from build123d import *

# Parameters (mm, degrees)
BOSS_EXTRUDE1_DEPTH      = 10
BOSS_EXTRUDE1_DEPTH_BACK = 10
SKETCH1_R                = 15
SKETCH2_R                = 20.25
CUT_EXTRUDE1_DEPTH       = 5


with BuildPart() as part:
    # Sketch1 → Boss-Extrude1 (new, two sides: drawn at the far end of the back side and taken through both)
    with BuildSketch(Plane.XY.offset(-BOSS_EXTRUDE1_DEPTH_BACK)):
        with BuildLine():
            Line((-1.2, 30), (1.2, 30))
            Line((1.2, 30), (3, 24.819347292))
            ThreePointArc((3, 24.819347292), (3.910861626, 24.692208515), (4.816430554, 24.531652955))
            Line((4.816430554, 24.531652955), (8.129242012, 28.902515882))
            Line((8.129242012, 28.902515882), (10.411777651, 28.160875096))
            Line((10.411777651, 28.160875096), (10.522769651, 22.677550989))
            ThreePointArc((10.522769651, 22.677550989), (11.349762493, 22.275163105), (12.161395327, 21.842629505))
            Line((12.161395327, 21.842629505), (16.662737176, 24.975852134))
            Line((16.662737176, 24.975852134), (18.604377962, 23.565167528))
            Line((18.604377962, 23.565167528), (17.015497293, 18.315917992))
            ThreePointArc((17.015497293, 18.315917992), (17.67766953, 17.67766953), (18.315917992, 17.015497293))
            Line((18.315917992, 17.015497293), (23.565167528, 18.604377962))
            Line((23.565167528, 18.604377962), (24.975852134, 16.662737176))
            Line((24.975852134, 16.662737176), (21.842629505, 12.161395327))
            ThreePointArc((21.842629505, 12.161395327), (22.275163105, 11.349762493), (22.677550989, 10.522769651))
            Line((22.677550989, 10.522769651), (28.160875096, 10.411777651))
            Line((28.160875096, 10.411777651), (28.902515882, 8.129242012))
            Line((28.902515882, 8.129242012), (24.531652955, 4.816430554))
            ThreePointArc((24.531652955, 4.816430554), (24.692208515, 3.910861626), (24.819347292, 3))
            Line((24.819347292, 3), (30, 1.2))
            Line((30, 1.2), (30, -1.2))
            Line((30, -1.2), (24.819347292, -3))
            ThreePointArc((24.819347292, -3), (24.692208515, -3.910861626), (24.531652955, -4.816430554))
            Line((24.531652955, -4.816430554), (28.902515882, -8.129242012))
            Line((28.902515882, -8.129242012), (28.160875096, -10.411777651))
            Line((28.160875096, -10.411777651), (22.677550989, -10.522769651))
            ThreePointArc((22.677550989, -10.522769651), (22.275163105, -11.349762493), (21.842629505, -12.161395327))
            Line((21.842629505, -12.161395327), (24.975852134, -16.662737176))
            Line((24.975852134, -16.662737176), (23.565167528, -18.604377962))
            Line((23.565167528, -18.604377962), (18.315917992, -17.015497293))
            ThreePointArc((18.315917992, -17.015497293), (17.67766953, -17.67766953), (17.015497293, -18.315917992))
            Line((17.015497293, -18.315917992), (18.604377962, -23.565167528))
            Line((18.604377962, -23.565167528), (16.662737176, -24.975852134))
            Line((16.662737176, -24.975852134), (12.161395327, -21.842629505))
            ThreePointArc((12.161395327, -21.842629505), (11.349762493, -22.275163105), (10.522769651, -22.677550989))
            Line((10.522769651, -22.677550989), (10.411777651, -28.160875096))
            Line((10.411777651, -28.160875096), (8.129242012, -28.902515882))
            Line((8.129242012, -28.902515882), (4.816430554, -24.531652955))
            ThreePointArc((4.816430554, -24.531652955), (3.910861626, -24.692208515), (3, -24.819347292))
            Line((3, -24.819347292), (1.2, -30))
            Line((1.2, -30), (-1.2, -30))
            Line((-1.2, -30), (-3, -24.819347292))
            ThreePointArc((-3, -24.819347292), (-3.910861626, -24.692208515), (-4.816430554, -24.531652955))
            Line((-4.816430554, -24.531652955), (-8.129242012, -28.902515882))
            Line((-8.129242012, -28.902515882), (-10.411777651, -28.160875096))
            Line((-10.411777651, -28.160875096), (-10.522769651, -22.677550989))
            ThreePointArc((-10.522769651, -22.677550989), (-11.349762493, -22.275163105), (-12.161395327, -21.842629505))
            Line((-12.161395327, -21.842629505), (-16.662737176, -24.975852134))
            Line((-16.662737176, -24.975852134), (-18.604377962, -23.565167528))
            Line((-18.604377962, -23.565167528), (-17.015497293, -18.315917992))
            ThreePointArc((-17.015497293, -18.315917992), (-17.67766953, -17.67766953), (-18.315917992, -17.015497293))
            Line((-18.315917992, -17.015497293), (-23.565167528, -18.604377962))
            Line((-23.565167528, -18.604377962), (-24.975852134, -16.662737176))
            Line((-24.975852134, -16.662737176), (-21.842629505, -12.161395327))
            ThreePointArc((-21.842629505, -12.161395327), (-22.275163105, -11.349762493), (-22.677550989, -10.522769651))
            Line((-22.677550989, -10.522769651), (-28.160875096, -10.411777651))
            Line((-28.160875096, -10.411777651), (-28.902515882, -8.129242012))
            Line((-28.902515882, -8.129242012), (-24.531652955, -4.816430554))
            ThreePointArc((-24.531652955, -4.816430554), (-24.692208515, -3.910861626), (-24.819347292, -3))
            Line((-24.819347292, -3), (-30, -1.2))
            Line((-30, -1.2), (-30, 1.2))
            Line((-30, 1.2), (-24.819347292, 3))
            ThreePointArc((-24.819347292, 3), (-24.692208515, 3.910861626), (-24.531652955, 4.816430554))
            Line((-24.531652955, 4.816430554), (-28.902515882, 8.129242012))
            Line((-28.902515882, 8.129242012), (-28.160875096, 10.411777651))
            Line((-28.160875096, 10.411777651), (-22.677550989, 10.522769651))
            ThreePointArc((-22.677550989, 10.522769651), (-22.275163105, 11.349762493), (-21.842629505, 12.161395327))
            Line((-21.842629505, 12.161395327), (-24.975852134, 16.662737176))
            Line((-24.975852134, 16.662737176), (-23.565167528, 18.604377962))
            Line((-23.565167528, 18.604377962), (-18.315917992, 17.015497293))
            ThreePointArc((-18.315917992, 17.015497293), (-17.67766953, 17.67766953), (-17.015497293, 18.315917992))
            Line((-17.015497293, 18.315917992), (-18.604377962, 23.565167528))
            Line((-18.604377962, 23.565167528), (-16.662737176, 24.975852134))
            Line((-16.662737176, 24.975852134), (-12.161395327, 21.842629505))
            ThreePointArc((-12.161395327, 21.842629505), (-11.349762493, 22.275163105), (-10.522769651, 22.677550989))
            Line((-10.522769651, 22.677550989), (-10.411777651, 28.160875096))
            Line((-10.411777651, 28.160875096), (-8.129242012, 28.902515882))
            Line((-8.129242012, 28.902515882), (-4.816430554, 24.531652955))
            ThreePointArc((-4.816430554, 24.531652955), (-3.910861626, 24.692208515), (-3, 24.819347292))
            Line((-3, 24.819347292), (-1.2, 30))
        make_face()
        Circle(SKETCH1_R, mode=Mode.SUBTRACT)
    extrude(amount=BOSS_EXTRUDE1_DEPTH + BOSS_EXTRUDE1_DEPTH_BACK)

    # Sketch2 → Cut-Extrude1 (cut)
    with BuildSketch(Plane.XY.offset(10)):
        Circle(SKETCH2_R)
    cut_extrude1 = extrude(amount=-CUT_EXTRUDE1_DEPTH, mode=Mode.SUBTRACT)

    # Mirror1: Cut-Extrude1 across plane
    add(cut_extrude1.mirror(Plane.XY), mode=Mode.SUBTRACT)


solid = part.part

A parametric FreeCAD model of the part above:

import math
import FreeCAD as App
import Part
import Sketcher
Q = App.Units.Quantity

doc = App.newDocument("Part")
body = doc.addObject("PartDesign::Body", "Body")

# Sketch on XY plane
sketch1 = doc.addObject("Sketcher::SketchObject", "Sketch")
body.addObject(sketch1)
sketch1.AttachmentSupport = (doc.XY_Plane, [""])
sketch1.MapMode = "FlatFace"
sketch1.addGeometry([
    Part.LineSegment(App.Vector(1.2, 30, 0), App.Vector(-1.2, 30, 0)),  # 0
    Part.LineSegment(App.Vector(-1.2, 30, 0), App.Vector(-3, 24.8, 0)),  # 1
    Part.ArcOfCircle(Part.Circle(App.Vector(0, 0, 0), App.Vector(0, 0, 1), 25), math.radians(96.89), math.radians(101.11)),  # 2
    Part.LineSegment(App.Vector(-4.8, 24.5, 0), App.Vector(-8.1, 28.9, 0)),  # 3
    Part.LineSegment(App.Vector(-8.1, 28.9, 0), App.Vector(-10.4, 28.2, 0)),  # 4
    Part.LineSegment(App.Vector(-10.4, 28.2, 0), App.Vector(-10.5, 22.7, 0)),  # 5
    Part.ArcOfCircle(Part.Circle(App.Vector(0, 0, 0), App.Vector(0, 0, 1), 25), math.radians(114.89), math.radians(119.11)),  # 6
    Part.LineSegment(App.Vector(-12.2, 21.8, 0), App.Vector(-16.7, 25, 0)),  # 7
    Part.LineSegment(App.Vector(-16.7, 25, 0), App.Vector(-18.6, 23.6, 0)),  # 8
    Part.LineSegment(App.Vector(-18.6, 23.6, 0), App.Vector(-17, 18.3, 0)),  # 9
    Part.ArcOfCircle(Part.Circle(App.Vector(0, 0, 0), App.Vector(0, 0, 1), 25), math.radians(132.89), math.radians(137.11)),  # 10
    Part.LineSegment(App.Vector(-18.3, 17, 0), App.Vector(-23.6, 18.6, 0)),  # 11
    Part.LineSegment(App.Vector(-23.6, 18.6, 0), App.Vector(-25, 16.7, 0)),  # 12
    Part.LineSegment(App.Vector(-25, 16.7, 0), App.Vector(-21.8, 12.2, 0)),  # 13
    Part.ArcOfCircle(Part.Circle(App.Vector(0, 0, 0), App.Vector(0, 0, 1), 25), math.radians(150.89), math.radians(155.11)),  # 14
    Part.LineSegment(App.Vector(-22.7, 10.5, 0), App.Vector(-28.2, 10.4, 0)),  # 15
    Part.LineSegment(App.Vector(-28.2, 10.4, 0), App.Vector(-28.9, 8.1, 0)),  # 16
    Part.LineSegment(App.Vector(-28.9, 8.1, 0), App.Vector(-24.5, 4.8, 0)),  # 17
    Part.ArcOfCircle(Part.Circle(App.Vector(0, 0, 0), App.Vector(0, 0, 1), 25), math.radians(168.89), math.radians(173.11)),  # 18
    Part.LineSegment(App.Vector(-24.8, 3, 0), App.Vector(-30, 1.2, 0)),  # 19
    Part.LineSegment(App.Vector(-30, 1.2, 0), App.Vector(-30, -1.2, 0)),  # 20
    Part.LineSegment(App.Vector(-30, -1.2, 0), App.Vector(-24.8, -3, 0)),  # 21
    Part.ArcOfCircle(Part.Circle(App.Vector(0, 0, 0), App.Vector(0, 0, 1), 25), math.radians(-173.11), math.radians(-168.89)),  # 22
    Part.LineSegment(App.Vector(-24.5, -4.8, 0), App.Vector(-28.9, -8.1, 0)),  # 23
    Part.LineSegment(App.Vector(-28.9, -8.1, 0), App.Vector(-28.2, -10.4, 0)),  # 24
    Part.LineSegment(App.Vector(-28.2, -10.4, 0), App.Vector(-22.7, -10.5, 0)),  # 25
    Part.ArcOfCircle(Part.Circle(App.Vector(0, 0, 0), App.Vector(0, 0, 1), 25), math.radians(-155.11), math.radians(-150.89)),  # 26
    Part.LineSegment(App.Vector(-21.8, -12.2, 0), App.Vector(-25, -16.7, 0)),  # 27
    Part.LineSegment(App.Vector(-25, -16.7, 0), App.Vector(-23.6, -18.6, 0)),  # 28
    Part.LineSegment(App.Vector(-23.6, -18.6, 0), App.Vector(-18.3, -17, 0)),  # 29
    Part.ArcOfCircle(Part.Circle(App.Vector(0, 0, 0), App.Vector(0, 0, 1), 25), math.radians(-137.11), math.radians(-132.89)),  # 30
    Part.LineSegment(App.Vector(-17, -18.3, 0), App.Vector(-18.6, -23.6, 0)),  # 31
    Part.LineSegment(App.Vector(-18.6, -23.6, 0), App.Vector(-16.7, -25, 0)),  # 32
    Part.LineSegment(App.Vector(-16.7, -25, 0), App.Vector(-12.2, -21.8, 0)),  # 33
    Part.ArcOfCircle(Part.Circle(App.Vector(0, 0, 0), App.Vector(0, 0, 1), 25), math.radians(-119.11), math.radians(-114.89)),  # 34
    Part.LineSegment(App.Vector(-10.5, -22.7, 0), App.Vector(-10.4, -28.2, 0)),  # 35
    Part.LineSegment(App.Vector(-10.4, -28.2, 0), App.Vector(-8.1, -28.9, 0)),  # 36
    Part.LineSegment(App.Vector(-8.1, -28.9, 0), App.Vector(-4.8, -24.5, 0)),  # 37
    Part.ArcOfCircle(Part.Circle(App.Vector(0, 0, 0), App.Vector(0, 0, 1), 25), math.radians(-101.11), math.radians(-96.89)),  # 38
    Part.LineSegment(App.Vector(-3, -24.8, 0), App.Vector(-1.2, -30, 0)),  # 39
    Part.LineSegment(App.Vector(-1.2, -30, 0), App.Vector(1.2, -30, 0)),  # 40
    Part.LineSegment(App.Vector(1.2, -30, 0), App.Vector(3, -24.8, 0)),  # 41
    Part.ArcOfCircle(Part.Circle(App.Vector(0, 0, 0), App.Vector(0, 0, 1), 25), math.radians(-83.11), math.radians(-78.89)),  # 42
    Part.LineSegment(App.Vector(4.8, -24.5, 0), App.Vector(8.1, -28.9, 0)),  # 43
    Part.LineSegment(App.Vector(8.1, -28.9, 0), App.Vector(10.4, -28.2, 0)),  # 44
    Part.LineSegment(App.Vector(10.4, -28.2, 0), App.Vector(10.5, -22.7, 0)),  # 45
    Part.ArcOfCircle(Part.Circle(App.Vector(0, 0, 0), App.Vector(0, 0, 1), 25), math.radians(-65.11), math.radians(-60.89)),  # 46
    Part.LineSegment(App.Vector(12.2, -21.8, 0), App.Vector(16.7, -25, 0)),  # 47
    Part.LineSegment(App.Vector(16.7, -25, 0), App.Vector(18.6, -23.6, 0)),  # 48
    Part.LineSegment(App.Vector(18.6, -23.6, 0), App.Vector(17, -18.3, 0)),  # 49
    Part.ArcOfCircle(Part.Circle(App.Vector(0, 0, 0), App.Vector(0, 0, 1), 25), math.radians(-47.11), math.radians(-42.89)),  # 50
    Part.LineSegment(App.Vector(18.3, -17, 0), App.Vector(23.6, -18.6, 0)),  # 51
    Part.LineSegment(App.Vector(23.6, -18.6, 0), App.Vector(25, -16.7, 0)),  # 52
    Part.LineSegment(App.Vector(25, -16.7, 0), App.Vector(21.8, -12.2, 0)),  # 53
    Part.ArcOfCircle(Part.Circle(App.Vector(0, 0, 0), App.Vector(0, 0, 1), 25), math.radians(-29.11), math.radians(-24.89)),  # 54
    Part.LineSegment(App.Vector(22.7, -10.5, 0), App.Vector(28.2, -10.4, 0)),  # 55
    Part.LineSegment(App.Vector(28.2, -10.4, 0), App.Vector(28.9, -8.1, 0)),  # 56
    Part.LineSegment(App.Vector(28.9, -8.1, 0), App.Vector(24.5, -4.8, 0)),  # 57
    Part.ArcOfCircle(Part.Circle(App.Vector(0, 0, 0), App.Vector(0, 0, 1), 25), math.radians(-11.11), math.radians(-6.89)),  # 58
    Part.LineSegment(App.Vector(24.8, -3, 0), App.Vector(30, -1.2, 0)),  # 59
    Part.LineSegment(App.Vector(30, -1.2, 0), App.Vector(30, 1.2, 0)),  # 60
    Part.LineSegment(App.Vector(30, 1.2, 0), App.Vector(24.8, 3, 0)),  # 61
    Part.ArcOfCircle(Part.Circle(App.Vector(0, 0, 0), App.Vector(0, 0, 1), 25), math.radians(6.89), math.radians(11.11)),  # 62
    Part.LineSegment(App.Vector(24.5, 4.8, 0), App.Vector(28.9, 8.1, 0)),  # 63
    Part.LineSegment(App.Vector(28.9, 8.1, 0), App.Vector(28.2, 10.4, 0)),  # 64
    Part.LineSegment(App.Vector(28.2, 10.4, 0), App.Vector(22.7, 10.5, 0)),  # 65
    Part.ArcOfCircle(Part.Circle(App.Vector(0, 0, 0), App.Vector(0, 0, 1), 25), math.radians(24.89), math.radians(29.11)),  # 66
    Part.LineSegment(App.Vector(21.8, 12.2, 0), App.Vector(25, 16.7, 0)),  # 67
    Part.LineSegment(App.Vector(25, 16.7, 0), App.Vector(23.6, 18.6, 0)),  # 68
    Part.LineSegment(App.Vector(23.6, 18.6, 0), App.Vector(18.3, 17, 0)),  # 69
    Part.ArcOfCircle(Part.Circle(App.Vector(0, 0, 0), App.Vector(0, 0, 1), 25), math.radians(42.89), math.radians(47.11)),  # 70
    Part.LineSegment(App.Vector(17, 18.3, 0), App.Vector(18.6, 23.6, 0)),  # 71
    Part.LineSegment(App.Vector(18.6, 23.6, 0), App.Vector(16.7, 25, 0)),  # 72
    Part.LineSegment(App.Vector(16.7, 25, 0), App.Vector(12.2, 21.8, 0)),  # 73
    Part.ArcOfCircle(Part.Circle(App.Vector(0, 0, 0), App.Vector(0, 0, 1), 25), math.radians(60.89), math.radians(65.11)),  # 74
    Part.LineSegment(App.Vector(10.5, 22.7, 0), App.Vector(10.4, 28.2, 0)),  # 75
    Part.LineSegment(App.Vector(10.4, 28.2, 0), App.Vector(8.1, 28.9, 0)),  # 76
    Part.LineSegment(App.Vector(8.1, 28.9, 0), App.Vector(4.8, 24.5, 0)),  # 77
    Part.ArcOfCircle(Part.Circle(App.Vector(0, 0, 0), App.Vector(0, 0, 1), 25), math.radians(78.89), math.radians(83.11)),  # 78
    Part.LineSegment(App.Vector(3, 24.8, 0), App.Vector(1.2, 30, 0)),  # 79
    Part.Circle(App.Vector(0, 0, 0), App.Vector(0, 0, 1), 15),  # 80
], False)
sketch1.addConstraint([
    Sketcher.Constraint("Coincident", 0, 2, 1, 1),
    Sketcher.Constraint("Coincident", 1, 2, 2, 1),
    Sketcher.Constraint("Coincident", 2, 2, 3, 1),
    Sketcher.Constraint("Coincident", 3, 2, 4, 1),
    Sketcher.Constraint("Coincident", 4, 2, 5, 1),
    Sketcher.Constraint("Coincident", 5, 2, 6, 1),
    Sketcher.Constraint("Coincident", 6, 2, 7, 1),
    Sketcher.Constraint("Coincident", 7, 2, 8, 1),
    Sketcher.Constraint("Coincident", 8, 2, 9, 1),
    Sketcher.Constraint("Coincident", 9, 2, 10, 1),
    Sketcher.Constraint("Coincident", 10, 2, 11, 1),
    Sketcher.Constraint("Coincident", 11, 2, 12, 1),
    Sketcher.Constraint("Coincident", 12, 2, 13, 1),
    Sketcher.Constraint("Coincident", 13, 2, 14, 1),
    Sketcher.Constraint("Coincident", 14, 2, 15, 1),
    Sketcher.Constraint("Coincident", 15, 2, 16, 1),
    Sketcher.Constraint("Coincident", 16, 2, 17, 1),
    Sketcher.Constraint("Coincident", 17, 2, 18, 1),
    Sketcher.Constraint("Coincident", 18, 2, 19, 1),
    Sketcher.Constraint("Coincident", 19, 2, 20, 1),
    Sketcher.Constraint("Coincident", 20, 2, 21, 1),
    Sketcher.Constraint("Coincident", 21, 2, 22, 1),
    Sketcher.Constraint("Coincident", 22, 2, 23, 1),
    Sketcher.Constraint("Coincident", 23, 2, 24, 1),
    Sketcher.Constraint("Coincident", 24, 2, 25, 1),
    Sketcher.Constraint("Coincident", 25, 2, 26, 1),
    Sketcher.Constraint("Coincident", 26, 2, 27, 1),
    Sketcher.Constraint("Coincident", 27, 2, 28, 1),
    Sketcher.Constraint("Coincident", 28, 2, 29, 1),
    Sketcher.Constraint("Coincident", 29, 2, 30, 1),
    Sketcher.Constraint("Coincident", 30, 2, 31, 1),
    Sketcher.Constraint("Coincident", 31, 2, 32, 1),
    Sketcher.Constraint("Coincident", 32, 2, 33, 1),
    Sketcher.Constraint("Coincident", 33, 2, 34, 1),
    Sketcher.Constraint("Coincident", 34, 2, 35, 1),
    Sketcher.Constraint("Coincident", 35, 2, 36, 1),
    Sketcher.Constraint("Coincident", 36, 2, 37, 1),
    Sketcher.Constraint("Coincident", 37, 2, 38, 1),
    Sketcher.Constraint("Coincident", 38, 2, 39, 1),
    Sketcher.Constraint("Coincident", 39, 2, 40, 1),
    Sketcher.Constraint("Coincident", 40, 2, 41, 1),
    Sketcher.Constraint("Coincident", 41, 2, 42, 1),
    Sketcher.Constraint("Coincident", 42, 2, 43, 1),
    Sketcher.Constraint("Coincident", 43, 2, 44, 1),
    Sketcher.Constraint("Coincident", 44, 2, 45, 1),
    Sketcher.Constraint("Coincident", 45, 2, 46, 1),
    Sketcher.Constraint("Coincident", 46, 2, 47, 1),
    Sketcher.Constraint("Coincident", 47, 2, 48, 1),
    Sketcher.Constraint("Coincident", 48, 2, 49, 1),
    Sketcher.Constraint("Coincident", 49, 2, 50, 1),
    Sketcher.Constraint("Coincident", 50, 2, 51, 1),
    Sketcher.Constraint("Coincident", 51, 2, 52, 1),
    Sketcher.Constraint("Coincident", 52, 2, 53, 1),
    Sketcher.Constraint("Coincident", 53, 2, 54, 1),
    Sketcher.Constraint("Coincident", 54, 2, 55, 1),
    Sketcher.Constraint("Coincident", 55, 2, 56, 1),
    Sketcher.Constraint("Coincident", 56, 2, 57, 1),
    Sketcher.Constraint("Coincident", 57, 2, 58, 1),
    Sketcher.Constraint("Coincident", 58, 2, 59, 1),
    Sketcher.Constraint("Coincident", 59, 2, 60, 1),
    Sketcher.Constraint("Coincident", 60, 2, 61, 1),
    Sketcher.Constraint("Coincident", 61, 2, 62, 1),
    Sketcher.Constraint("Coincident", 62, 2, 63, 1),
    Sketcher.Constraint("Coincident", 63, 2, 64, 1),
    Sketcher.Constraint("Coincident", 64, 2, 65, 1),
    Sketcher.Constraint("Coincident", 65, 2, 66, 1),
    Sketcher.Constraint("Coincident", 66, 2, 67, 1),
    Sketcher.Constraint("Coincident", 67, 2, 68, 1),
    Sketcher.Constraint("Coincident", 68, 2, 69, 1),
    Sketcher.Constraint("Coincident", 69, 2, 70, 1),
    Sketcher.Constraint("Coincident", 70, 2, 71, 1),
    Sketcher.Constraint("Coincident", 71, 2, 72, 1),
    Sketcher.Constraint("Coincident", 72, 2, 73, 1),
    Sketcher.Constraint("Coincident", 73, 2, 74, 1),
    Sketcher.Constraint("Coincident", 74, 2, 75, 1),
    Sketcher.Constraint("Coincident", 75, 2, 76, 1),
    Sketcher.Constraint("Coincident", 76, 2, 77, 1),
    Sketcher.Constraint("Coincident", 77, 2, 78, 1),
    Sketcher.Constraint("Coincident", 78, 2, 79, 1),
    Sketcher.Constraint("Coincident", 79, 2, 0, 1),
    Sketcher.Constraint("Horizontal", 0),
    Sketcher.Constraint("Vertical", 20),
    Sketcher.Constraint("Horizontal", 40),
    Sketcher.Constraint("Vertical", 60),
    Sketcher.Constraint("Coincident", 2, 3, -1, 1),
    Sketcher.Constraint("Coincident", 6, 3, -1, 1),
    Sketcher.Constraint("Coincident", 10, 3, -1, 1),
    Sketcher.Constraint("Coincident", 14, 3, -1, 1),
    Sketcher.Constraint("Coincident", 18, 3, -1, 1),
    Sketcher.Constraint("Coincident", 22, 3, -1, 1),
    Sketcher.Constraint("Coincident", 26, 3, -1, 1),
    Sketcher.Constraint("Coincident", 30, 3, -1, 1),
    Sketcher.Constraint("Coincident", 34, 3, -1, 1),
    Sketcher.Constraint("Coincident", 38, 3, -1, 1),
    Sketcher.Constraint("Coincident", 42, 3, -1, 1),
    Sketcher.Constraint("Coincident", 46, 3, -1, 1),
    Sketcher.Constraint("Coincident", 50, 3, -1, 1),
    Sketcher.Constraint("Coincident", 54, 3, -1, 1),
    Sketcher.Constraint("Coincident", 58, 3, -1, 1),
    Sketcher.Constraint("Coincident", 62, 3, -1, 1),
    Sketcher.Constraint("Coincident", 66, 3, -1, 1),
    Sketcher.Constraint("Coincident", 70, 3, -1, 1),
    Sketcher.Constraint("Coincident", 74, 3, -1, 1),
    Sketcher.Constraint("Coincident", 78, 3, -1, 1),
    Sketcher.Constraint("Coincident", 80, 3, -1, 1),
    Sketcher.Constraint("Equal", 2, 6),
    Sketcher.Constraint("Equal", 6, 10),
    Sketcher.Constraint("Equal", 10, 14),
    Sketcher.Constraint("Equal", 14, 18),
    Sketcher.Constraint("Equal", 18, 22),
    Sketcher.Constraint("Equal", 22, 26),
    Sketcher.Constraint("Equal", 26, 30),
    Sketcher.Constraint("Equal", 30, 34),
    Sketcher.Constraint("Equal", 34, 38),
    Sketcher.Constraint("Equal", 38, 42),
    Sketcher.Constraint("Equal", 42, 46),
    Sketcher.Constraint("Equal", 46, 50),
    Sketcher.Constraint("Equal", 50, 54),
    Sketcher.Constraint("Equal", 54, 58),
    Sketcher.Constraint("Equal", 58, 62),
    Sketcher.Constraint("Equal", 62, 66),
    Sketcher.Constraint("Equal", 66, 70),
    Sketcher.Constraint("Equal", 70, 74),
    Sketcher.Constraint("Equal", 74, 78),
    Sketcher.Constraint("Symmetric", 0, 2, 40, 2, -1, 1),
    Sketcher.Constraint("Symmetric", 3, 2, 43, 2, -1, 1),
    Sketcher.Constraint("Symmetric", 4, 2, 44, 2, -1, 1),
    Sketcher.Constraint("Symmetric", 7, 2, 47, 2, -1, 1),
    Sketcher.Constraint("Symmetric", 8, 2, 48, 2, -1, 1),
    Sketcher.Constraint("Symmetric", 11, 2, 51, 2, -1, 1),
    Sketcher.Constraint("Symmetric", 12, 2, 52, 2, -1, 1),
    Sketcher.Constraint("Symmetric", 15, 2, 55, 2, -1, 1),
    Sketcher.Constraint("Symmetric", 16, 2, 56, 2, -1, 1),
    Sketcher.Constraint("Symmetric", 19, 2, 59, 2, -1, 1),
    Sketcher.Constraint("Symmetric", 23, 2, 63, 2, -1, 1),
    Sketcher.Constraint("Symmetric", 24, 2, 64, 2, -1, 1),
    Sketcher.Constraint("Symmetric", 27, 2, 67, 2, -1, 1),
    Sketcher.Constraint("Symmetric", 28, 2, 68, 2, -1, 1),
    Sketcher.Constraint("Symmetric", 31, 2, 71, 2, -1, 1),
    Sketcher.Constraint("Symmetric", 32, 2, 72, 2, -1, 1),
    Sketcher.Constraint("Symmetric", 35, 2, 75, 2, -1, 1),
    Sketcher.Constraint("Symmetric", 36, 2, 76, 2, -1, 1),
    Sketcher.Constraint("Symmetric", 36, 2, 43, 2, -2),
    Sketcher.Constraint("Symmetric", 35, 2, 44, 2, -2),
    Sketcher.Constraint("Symmetric", 32, 2, 47, 2, -2),
    Sketcher.Constraint("Symmetric", 31, 2, 48, 2, -2),
    Sketcher.Constraint("Symmetric", 28, 2, 51, 2, -2),
    Sketcher.Constraint("Symmetric", 27, 2, 52, 2, -2),
    Sketcher.Constraint("Symmetric", 24, 2, 55, 2, -2),
    Sketcher.Constraint("Symmetric", 23, 2, 56, 2, -2),
    Sketcher.Constraint("Perpendicular", 1, 21),
    Sketcher.Constraint("Perpendicular", 3, 23),
    Sketcher.Constraint("Perpendicular", 4, 24),
    Sketcher.Constraint("Perpendicular", 5, 25),
    Sketcher.Constraint("Perpendicular", 7, 27),
    Sketcher.Constraint("Perpendicular", 8, 28),
    Sketcher.Constraint("Perpendicular", 9, 29),
    Sketcher.Constraint("Perpendicular", 11, 31),
    Sketcher.Constraint("Perpendicular", 13, 33),
    Sketcher.Constraint("Perpendicular", 15, 35),
    Sketcher.Constraint("Perpendicular", 17, 37),
    Sketcher.Constraint("Perpendicular", 19, 39),
    Sketcher.Constraint("Perpendicular", 21, 41),
    Sketcher.Constraint("Perpendicular", 23, 43),
    Sketcher.Constraint("Perpendicular", 25, 45),
    Sketcher.Constraint("Perpendicular", 27, 47),
    Sketcher.Constraint("Perpendicular", 29, 49),
    Sketcher.Constraint("Perpendicular", 31, 51),
    Sketcher.Constraint("Perpendicular", 33, 53),
    Sketcher.Constraint("Perpendicular", 35, 55),
    Sketcher.Constraint("Perpendicular", 37, 57),
    Sketcher.Constraint("Perpendicular", 39, 59),
    Sketcher.Constraint("Perpendicular", 41, 61),
    Sketcher.Constraint("Perpendicular", 43, 63),
    Sketcher.Constraint("Perpendicular", 45, 65),
    Sketcher.Constraint("Perpendicular", 47, 67),
    Sketcher.Constraint("Perpendicular", 49, 69),
    Sketcher.Constraint("Perpendicular", 51, 71),
    Sketcher.Constraint("Perpendicular", 53, 73),
    Sketcher.Constraint("Perpendicular", 55, 75),
    Sketcher.Constraint("Perpendicular", 57, 77),
    Sketcher.Constraint("Perpendicular", 59, 79),
    Sketcher.Constraint("Horizontal", 38, 2, 41, 2),
    Sketcher.Constraint("Horizontal", 37, 2, 42, 2),
    Sketcher.Constraint("Horizontal", 34, 2, 45, 2),
    Sketcher.Constraint("Horizontal", 33, 2, 46, 2),
    Sketcher.Constraint("Horizontal", 30, 2, 49, 2),
    Sketcher.Constraint("Horizontal", 21, 2, 58, 2),
    Sketcher.Constraint("Horizontal", 20, 2, 59, 2),
    Sketcher.Constraint("Horizontal", 19, 2, 60, 2),
    Sketcher.Constraint("Horizontal", 1, 2, 78, 2),
    Sketcher.Constraint("Equal", 40, 20),
    Sketcher.Constraint("Equal", 1, 3),
    Sketcher.Constraint("Equal", 3, 5),
    Sketcher.Constraint("Equal", 5, 7),
    Sketcher.Constraint("Equal", 4, 8),
    Sketcher.Constraint("Equal", 7, 9),
    Sketcher.Constraint("Equal", 9, 11),
    Sketcher.Constraint("Equal", 8, 12),
    Sketcher.Constraint("Equal", 11, 13),
    Sketcher.Constraint("Equal", 13, 15),
    Sketcher.Constraint("Equal", 12, 16),
    Sketcher.Constraint("Equal", 15, 17),
    Sketcher.Constraint("Equal", 17, 19),
    Sketcher.Constraint("Diameter", 80, Q("30 mm")),
    Sketcher.Constraint("Radius", 2, Q("25 mm")),
    Sketcher.Constraint("Angle", 4, Q("-162 deg")),
    Sketcher.Constraint("Angle", 8, Q("-144 deg")),
    Sketcher.Constraint("DistanceX", 0, 2, 0, 1, Q("2.4 mm")),
    Sketcher.Constraint("DistanceY", -1, 1, 0, 2, Q("30 mm")),
    Sketcher.Constraint("DistanceX", 1, 2, -1, 1, Q("3 mm")),
    Sketcher.Constraint("Distance", 4, Q("2.4 mm")),
    Sketcher.Constraint("DistanceX", 2, 2, -1, 1, Q("4.816431 mm")),
    Sketcher.Constraint("DistanceX", 5, 2, -1, 1, Q("10.52277 mm")),
    Sketcher.Constraint("DistanceY", -1, 1, 6, 2, Q("21.84263 mm")),
    Sketcher.Constraint("DistanceX", 7, 2, -1, 1, Q("16.662737 mm")),
])
pad1 = doc.addObject("PartDesign::Pad", "Pad")
body.addObject(pad1)
pad1.Profile = sketch1
pad1.Type = "TwoLengths"
pad1.Length = 10
pad1.Length2 = 10

# Sketch on XY plane
sketch2 = doc.addObject("Sketcher::SketchObject", "Sketch001")
body.addObject(sketch2)
sketch2.AttachmentSupport = (doc.XY_Plane, [""])
sketch2.MapMode = "FlatFace"
sketch2.AttachmentOffset = App.Placement(App.Vector(0, 0, 10), App.Rotation())
sketch2.addGeometry(Part.Circle(App.Vector(0, 0, 0), App.Vector(0, 0, 1), 20), False)
sketch2.addConstraint([
    Sketcher.Constraint("Coincident", 0, 3, -1, 1),
    Sketcher.Constraint("Diameter", 0, Q("40.5 mm")),
])
pocket1 = doc.addObject("PartDesign::Pocket", "Pocket")
body.addObject(pocket1)
pocket1.Profile = sketch2
pocket1.Length = 5
doc.recompute()

mirrored = doc.addObject("PartDesign::Mirrored", "Mirrored")
body.addObject(mirrored)
mirrored.Originals = [pocket1]
mirrored.MirrorPlane = (doc.XY_Plane, [""])
body.Tip = mirrored

doc.recompute()
